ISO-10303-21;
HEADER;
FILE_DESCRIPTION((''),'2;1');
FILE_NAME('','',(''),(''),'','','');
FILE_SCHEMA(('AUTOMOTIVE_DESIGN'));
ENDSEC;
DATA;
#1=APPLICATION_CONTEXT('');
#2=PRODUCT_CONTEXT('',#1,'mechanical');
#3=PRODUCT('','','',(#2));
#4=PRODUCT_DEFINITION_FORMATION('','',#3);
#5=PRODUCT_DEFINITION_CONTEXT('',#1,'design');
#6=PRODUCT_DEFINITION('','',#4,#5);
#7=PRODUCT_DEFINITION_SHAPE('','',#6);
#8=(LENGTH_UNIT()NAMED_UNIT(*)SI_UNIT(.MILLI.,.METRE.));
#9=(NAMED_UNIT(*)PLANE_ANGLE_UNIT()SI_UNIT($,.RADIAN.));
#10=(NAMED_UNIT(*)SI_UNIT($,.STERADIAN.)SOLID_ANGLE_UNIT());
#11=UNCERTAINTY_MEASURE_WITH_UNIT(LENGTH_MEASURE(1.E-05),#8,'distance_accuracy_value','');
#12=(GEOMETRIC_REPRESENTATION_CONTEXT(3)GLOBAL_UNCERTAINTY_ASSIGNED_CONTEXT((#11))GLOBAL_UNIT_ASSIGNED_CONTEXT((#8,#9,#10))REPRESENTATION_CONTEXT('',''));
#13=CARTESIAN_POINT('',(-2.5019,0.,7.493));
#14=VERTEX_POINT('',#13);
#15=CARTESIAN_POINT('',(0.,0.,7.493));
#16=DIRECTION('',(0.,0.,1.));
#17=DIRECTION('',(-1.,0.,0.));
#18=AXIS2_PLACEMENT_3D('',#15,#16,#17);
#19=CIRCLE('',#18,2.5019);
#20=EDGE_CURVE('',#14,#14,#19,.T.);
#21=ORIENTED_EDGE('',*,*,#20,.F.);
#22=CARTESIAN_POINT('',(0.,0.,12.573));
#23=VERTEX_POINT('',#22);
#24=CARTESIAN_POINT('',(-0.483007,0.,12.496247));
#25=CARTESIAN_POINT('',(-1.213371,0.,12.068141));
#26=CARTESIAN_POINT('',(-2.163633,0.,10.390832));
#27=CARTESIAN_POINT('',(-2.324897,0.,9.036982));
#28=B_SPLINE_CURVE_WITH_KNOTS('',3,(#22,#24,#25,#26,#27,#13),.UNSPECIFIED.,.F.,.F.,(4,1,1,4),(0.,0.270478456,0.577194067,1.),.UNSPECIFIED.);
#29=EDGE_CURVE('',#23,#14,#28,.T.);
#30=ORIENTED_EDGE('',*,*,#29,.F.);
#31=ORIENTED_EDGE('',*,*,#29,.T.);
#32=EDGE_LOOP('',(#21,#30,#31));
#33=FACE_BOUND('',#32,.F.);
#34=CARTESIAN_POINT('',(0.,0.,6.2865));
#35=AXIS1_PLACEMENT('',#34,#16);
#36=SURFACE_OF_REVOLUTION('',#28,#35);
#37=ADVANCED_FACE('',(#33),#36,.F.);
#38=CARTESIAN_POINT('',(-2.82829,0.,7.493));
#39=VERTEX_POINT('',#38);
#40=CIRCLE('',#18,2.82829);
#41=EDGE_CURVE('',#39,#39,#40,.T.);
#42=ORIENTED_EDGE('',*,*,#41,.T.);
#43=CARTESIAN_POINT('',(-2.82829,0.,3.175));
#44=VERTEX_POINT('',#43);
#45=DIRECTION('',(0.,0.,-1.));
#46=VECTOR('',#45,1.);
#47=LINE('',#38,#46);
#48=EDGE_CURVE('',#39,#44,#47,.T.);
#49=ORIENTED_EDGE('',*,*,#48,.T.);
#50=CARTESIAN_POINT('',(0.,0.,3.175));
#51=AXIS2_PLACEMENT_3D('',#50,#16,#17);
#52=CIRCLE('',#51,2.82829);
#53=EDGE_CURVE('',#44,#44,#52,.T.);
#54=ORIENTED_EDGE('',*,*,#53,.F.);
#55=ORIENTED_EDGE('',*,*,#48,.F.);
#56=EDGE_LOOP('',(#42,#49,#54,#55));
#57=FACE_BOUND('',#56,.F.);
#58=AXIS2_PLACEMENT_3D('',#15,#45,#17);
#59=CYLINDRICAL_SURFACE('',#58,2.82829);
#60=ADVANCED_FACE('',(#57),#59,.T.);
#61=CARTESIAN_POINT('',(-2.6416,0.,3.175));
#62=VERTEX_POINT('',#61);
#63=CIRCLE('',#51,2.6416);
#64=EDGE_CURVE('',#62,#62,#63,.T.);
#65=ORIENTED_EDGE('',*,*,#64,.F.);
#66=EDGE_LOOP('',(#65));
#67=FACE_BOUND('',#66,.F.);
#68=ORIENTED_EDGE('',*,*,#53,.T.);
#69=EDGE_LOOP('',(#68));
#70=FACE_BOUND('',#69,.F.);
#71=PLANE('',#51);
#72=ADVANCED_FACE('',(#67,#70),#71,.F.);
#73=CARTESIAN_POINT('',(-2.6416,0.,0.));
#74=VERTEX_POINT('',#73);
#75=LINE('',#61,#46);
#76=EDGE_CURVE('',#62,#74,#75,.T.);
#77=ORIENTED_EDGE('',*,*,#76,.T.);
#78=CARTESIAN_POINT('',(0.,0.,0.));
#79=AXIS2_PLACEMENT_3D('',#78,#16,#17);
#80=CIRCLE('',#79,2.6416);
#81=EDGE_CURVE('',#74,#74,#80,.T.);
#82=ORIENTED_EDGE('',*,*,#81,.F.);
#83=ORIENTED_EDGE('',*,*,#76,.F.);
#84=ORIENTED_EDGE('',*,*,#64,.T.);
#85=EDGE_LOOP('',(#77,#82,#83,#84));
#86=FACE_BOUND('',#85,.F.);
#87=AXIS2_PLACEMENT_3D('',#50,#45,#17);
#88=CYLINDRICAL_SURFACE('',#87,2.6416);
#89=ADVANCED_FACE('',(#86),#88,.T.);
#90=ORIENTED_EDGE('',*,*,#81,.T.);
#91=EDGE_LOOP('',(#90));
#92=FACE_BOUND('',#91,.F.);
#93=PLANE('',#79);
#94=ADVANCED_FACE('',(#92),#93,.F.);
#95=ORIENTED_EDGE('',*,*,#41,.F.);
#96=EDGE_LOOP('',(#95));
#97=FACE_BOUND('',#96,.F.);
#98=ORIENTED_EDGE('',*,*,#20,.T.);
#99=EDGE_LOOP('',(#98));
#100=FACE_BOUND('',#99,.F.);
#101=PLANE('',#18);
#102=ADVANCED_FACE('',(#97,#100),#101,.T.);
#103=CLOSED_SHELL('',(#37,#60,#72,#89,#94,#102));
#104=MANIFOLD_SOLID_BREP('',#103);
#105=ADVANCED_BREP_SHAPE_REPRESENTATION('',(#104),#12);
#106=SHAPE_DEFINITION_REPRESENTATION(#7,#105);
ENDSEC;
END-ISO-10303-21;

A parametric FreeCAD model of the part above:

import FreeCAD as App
import Part
import Sketcher

V = App.Vector
Q = App.Units.Quantity

doc = App.newDocument("Part")
body = doc.addObject("PartDesign::Body", "Body")

# Sketch on XZ plane
sketch1 = body.newObject("Sketcher::SketchObject", "Sketch")
sketch1.AttachmentSupport = (doc.getObject("XZ_Plane"), [""])
sketch1.MapMode = "FlatFace"
sketch1.addGeometry(Part.LineSegment(V(-2.6416, 0, 0), V(0, 0, 0)), False)
sketch1.addGeometry(Part.LineSegment(V(0, 0, 0), V(0, 12.573, 0)), False)
sketch1.addGeometry(Part.BSplineCurve([V(0, 12.573, 0), V(-0.483007, 12.496247, 0), V(-1.213371, 12.068141, 0), V(-2.163633, 10.390832, 0), V(-2.324897, 9.036982, 0), V(-2.5019, 7.493, 0)], [4, 1, 1, 4], [0, 0.270478456, 0.577194067, 1], False, 3, [1, 1, 1, 1, 1, 1], False), False)
sketch1.addGeometry(Part.LineSegment(V(-2.5019, 7.493, 0), V(-2.82829, 7.493, 0)), False)
sketch1.addGeometry(Part.LineSegment(V(-2.82829, 7.493, 0), V(-2.82829, 3.175, 0)), False)
sketch1.addGeometry(Part.LineSegment(V(-2.82829, 3.175, 0), V(-2.6416, 3.175, 0)), False)
sketch1.addGeometry(Part.LineSegment(V(-2.6416, 3.175, 0), V(-2.6416, 0, 0)), False)
sketch1.addConstraint(Sketcher.Constraint("Block", 2))
sketch1.addConstraint(Sketcher.Constraint("Coincident", 0, 2, 1, 1))
sketch1.addConstraint(Sketcher.Constraint("Coincident", 1, 2, 2, 1))
sketch1.addConstraint(Sketcher.Constraint("Coincident", 2, 2, 3, 1))
sketch1.addConstraint(Sketcher.Constraint("Coincident", 3, 2, 4, 1))
sketch1.addConstraint(Sketcher.Constraint("Coincident", 4, 2, 5, 1))
sketch1.addConstraint(Sketcher.Constraint("Coincident", 5, 2, 6, 1))
sketch1.addConstraint(Sketcher.Constraint("Coincident", 6, 2, 0, 1))
sketch1.addConstraint(Sketcher.Constraint("Horizontal", 0))
sketch1.addConstraint(Sketcher.Constraint("Vertical", 1))
sketch1.addConstraint(Sketcher.Constraint("Horizontal", 3))
sketch1.addConstraint(Sketcher.Constraint("Vertical", 4))
sketch1.addConstraint(Sketcher.Constraint("Horizontal", 5))
sketch1.addConstraint(Sketcher.Constraint("Vertical", 6))
sketch1.addConstraint(Sketcher.Constraint("PointOnObject", 6, 2, -1))
sketch1.addConstraint(Sketcher.Constraint("DistanceY", 4, 2, 4, 1, Q("0.17 in")))
sketch1.addConstraint(Sketcher.Constraint("DistanceX", 0, 1, 0, 2, Q("0.104 in")))
sketch1.addConstraint(Sketcher.Constraint("DistanceX", 3, 2, 3, 1, 0.32639))
revolution = body.newObject("PartDesign::Revolution", "Revolution")
revolution.Profile = sketch1
revolution.ReferenceAxis = (sketch1, ["V_Axis"])
revolution.Angle = 360

doc.recompute()
